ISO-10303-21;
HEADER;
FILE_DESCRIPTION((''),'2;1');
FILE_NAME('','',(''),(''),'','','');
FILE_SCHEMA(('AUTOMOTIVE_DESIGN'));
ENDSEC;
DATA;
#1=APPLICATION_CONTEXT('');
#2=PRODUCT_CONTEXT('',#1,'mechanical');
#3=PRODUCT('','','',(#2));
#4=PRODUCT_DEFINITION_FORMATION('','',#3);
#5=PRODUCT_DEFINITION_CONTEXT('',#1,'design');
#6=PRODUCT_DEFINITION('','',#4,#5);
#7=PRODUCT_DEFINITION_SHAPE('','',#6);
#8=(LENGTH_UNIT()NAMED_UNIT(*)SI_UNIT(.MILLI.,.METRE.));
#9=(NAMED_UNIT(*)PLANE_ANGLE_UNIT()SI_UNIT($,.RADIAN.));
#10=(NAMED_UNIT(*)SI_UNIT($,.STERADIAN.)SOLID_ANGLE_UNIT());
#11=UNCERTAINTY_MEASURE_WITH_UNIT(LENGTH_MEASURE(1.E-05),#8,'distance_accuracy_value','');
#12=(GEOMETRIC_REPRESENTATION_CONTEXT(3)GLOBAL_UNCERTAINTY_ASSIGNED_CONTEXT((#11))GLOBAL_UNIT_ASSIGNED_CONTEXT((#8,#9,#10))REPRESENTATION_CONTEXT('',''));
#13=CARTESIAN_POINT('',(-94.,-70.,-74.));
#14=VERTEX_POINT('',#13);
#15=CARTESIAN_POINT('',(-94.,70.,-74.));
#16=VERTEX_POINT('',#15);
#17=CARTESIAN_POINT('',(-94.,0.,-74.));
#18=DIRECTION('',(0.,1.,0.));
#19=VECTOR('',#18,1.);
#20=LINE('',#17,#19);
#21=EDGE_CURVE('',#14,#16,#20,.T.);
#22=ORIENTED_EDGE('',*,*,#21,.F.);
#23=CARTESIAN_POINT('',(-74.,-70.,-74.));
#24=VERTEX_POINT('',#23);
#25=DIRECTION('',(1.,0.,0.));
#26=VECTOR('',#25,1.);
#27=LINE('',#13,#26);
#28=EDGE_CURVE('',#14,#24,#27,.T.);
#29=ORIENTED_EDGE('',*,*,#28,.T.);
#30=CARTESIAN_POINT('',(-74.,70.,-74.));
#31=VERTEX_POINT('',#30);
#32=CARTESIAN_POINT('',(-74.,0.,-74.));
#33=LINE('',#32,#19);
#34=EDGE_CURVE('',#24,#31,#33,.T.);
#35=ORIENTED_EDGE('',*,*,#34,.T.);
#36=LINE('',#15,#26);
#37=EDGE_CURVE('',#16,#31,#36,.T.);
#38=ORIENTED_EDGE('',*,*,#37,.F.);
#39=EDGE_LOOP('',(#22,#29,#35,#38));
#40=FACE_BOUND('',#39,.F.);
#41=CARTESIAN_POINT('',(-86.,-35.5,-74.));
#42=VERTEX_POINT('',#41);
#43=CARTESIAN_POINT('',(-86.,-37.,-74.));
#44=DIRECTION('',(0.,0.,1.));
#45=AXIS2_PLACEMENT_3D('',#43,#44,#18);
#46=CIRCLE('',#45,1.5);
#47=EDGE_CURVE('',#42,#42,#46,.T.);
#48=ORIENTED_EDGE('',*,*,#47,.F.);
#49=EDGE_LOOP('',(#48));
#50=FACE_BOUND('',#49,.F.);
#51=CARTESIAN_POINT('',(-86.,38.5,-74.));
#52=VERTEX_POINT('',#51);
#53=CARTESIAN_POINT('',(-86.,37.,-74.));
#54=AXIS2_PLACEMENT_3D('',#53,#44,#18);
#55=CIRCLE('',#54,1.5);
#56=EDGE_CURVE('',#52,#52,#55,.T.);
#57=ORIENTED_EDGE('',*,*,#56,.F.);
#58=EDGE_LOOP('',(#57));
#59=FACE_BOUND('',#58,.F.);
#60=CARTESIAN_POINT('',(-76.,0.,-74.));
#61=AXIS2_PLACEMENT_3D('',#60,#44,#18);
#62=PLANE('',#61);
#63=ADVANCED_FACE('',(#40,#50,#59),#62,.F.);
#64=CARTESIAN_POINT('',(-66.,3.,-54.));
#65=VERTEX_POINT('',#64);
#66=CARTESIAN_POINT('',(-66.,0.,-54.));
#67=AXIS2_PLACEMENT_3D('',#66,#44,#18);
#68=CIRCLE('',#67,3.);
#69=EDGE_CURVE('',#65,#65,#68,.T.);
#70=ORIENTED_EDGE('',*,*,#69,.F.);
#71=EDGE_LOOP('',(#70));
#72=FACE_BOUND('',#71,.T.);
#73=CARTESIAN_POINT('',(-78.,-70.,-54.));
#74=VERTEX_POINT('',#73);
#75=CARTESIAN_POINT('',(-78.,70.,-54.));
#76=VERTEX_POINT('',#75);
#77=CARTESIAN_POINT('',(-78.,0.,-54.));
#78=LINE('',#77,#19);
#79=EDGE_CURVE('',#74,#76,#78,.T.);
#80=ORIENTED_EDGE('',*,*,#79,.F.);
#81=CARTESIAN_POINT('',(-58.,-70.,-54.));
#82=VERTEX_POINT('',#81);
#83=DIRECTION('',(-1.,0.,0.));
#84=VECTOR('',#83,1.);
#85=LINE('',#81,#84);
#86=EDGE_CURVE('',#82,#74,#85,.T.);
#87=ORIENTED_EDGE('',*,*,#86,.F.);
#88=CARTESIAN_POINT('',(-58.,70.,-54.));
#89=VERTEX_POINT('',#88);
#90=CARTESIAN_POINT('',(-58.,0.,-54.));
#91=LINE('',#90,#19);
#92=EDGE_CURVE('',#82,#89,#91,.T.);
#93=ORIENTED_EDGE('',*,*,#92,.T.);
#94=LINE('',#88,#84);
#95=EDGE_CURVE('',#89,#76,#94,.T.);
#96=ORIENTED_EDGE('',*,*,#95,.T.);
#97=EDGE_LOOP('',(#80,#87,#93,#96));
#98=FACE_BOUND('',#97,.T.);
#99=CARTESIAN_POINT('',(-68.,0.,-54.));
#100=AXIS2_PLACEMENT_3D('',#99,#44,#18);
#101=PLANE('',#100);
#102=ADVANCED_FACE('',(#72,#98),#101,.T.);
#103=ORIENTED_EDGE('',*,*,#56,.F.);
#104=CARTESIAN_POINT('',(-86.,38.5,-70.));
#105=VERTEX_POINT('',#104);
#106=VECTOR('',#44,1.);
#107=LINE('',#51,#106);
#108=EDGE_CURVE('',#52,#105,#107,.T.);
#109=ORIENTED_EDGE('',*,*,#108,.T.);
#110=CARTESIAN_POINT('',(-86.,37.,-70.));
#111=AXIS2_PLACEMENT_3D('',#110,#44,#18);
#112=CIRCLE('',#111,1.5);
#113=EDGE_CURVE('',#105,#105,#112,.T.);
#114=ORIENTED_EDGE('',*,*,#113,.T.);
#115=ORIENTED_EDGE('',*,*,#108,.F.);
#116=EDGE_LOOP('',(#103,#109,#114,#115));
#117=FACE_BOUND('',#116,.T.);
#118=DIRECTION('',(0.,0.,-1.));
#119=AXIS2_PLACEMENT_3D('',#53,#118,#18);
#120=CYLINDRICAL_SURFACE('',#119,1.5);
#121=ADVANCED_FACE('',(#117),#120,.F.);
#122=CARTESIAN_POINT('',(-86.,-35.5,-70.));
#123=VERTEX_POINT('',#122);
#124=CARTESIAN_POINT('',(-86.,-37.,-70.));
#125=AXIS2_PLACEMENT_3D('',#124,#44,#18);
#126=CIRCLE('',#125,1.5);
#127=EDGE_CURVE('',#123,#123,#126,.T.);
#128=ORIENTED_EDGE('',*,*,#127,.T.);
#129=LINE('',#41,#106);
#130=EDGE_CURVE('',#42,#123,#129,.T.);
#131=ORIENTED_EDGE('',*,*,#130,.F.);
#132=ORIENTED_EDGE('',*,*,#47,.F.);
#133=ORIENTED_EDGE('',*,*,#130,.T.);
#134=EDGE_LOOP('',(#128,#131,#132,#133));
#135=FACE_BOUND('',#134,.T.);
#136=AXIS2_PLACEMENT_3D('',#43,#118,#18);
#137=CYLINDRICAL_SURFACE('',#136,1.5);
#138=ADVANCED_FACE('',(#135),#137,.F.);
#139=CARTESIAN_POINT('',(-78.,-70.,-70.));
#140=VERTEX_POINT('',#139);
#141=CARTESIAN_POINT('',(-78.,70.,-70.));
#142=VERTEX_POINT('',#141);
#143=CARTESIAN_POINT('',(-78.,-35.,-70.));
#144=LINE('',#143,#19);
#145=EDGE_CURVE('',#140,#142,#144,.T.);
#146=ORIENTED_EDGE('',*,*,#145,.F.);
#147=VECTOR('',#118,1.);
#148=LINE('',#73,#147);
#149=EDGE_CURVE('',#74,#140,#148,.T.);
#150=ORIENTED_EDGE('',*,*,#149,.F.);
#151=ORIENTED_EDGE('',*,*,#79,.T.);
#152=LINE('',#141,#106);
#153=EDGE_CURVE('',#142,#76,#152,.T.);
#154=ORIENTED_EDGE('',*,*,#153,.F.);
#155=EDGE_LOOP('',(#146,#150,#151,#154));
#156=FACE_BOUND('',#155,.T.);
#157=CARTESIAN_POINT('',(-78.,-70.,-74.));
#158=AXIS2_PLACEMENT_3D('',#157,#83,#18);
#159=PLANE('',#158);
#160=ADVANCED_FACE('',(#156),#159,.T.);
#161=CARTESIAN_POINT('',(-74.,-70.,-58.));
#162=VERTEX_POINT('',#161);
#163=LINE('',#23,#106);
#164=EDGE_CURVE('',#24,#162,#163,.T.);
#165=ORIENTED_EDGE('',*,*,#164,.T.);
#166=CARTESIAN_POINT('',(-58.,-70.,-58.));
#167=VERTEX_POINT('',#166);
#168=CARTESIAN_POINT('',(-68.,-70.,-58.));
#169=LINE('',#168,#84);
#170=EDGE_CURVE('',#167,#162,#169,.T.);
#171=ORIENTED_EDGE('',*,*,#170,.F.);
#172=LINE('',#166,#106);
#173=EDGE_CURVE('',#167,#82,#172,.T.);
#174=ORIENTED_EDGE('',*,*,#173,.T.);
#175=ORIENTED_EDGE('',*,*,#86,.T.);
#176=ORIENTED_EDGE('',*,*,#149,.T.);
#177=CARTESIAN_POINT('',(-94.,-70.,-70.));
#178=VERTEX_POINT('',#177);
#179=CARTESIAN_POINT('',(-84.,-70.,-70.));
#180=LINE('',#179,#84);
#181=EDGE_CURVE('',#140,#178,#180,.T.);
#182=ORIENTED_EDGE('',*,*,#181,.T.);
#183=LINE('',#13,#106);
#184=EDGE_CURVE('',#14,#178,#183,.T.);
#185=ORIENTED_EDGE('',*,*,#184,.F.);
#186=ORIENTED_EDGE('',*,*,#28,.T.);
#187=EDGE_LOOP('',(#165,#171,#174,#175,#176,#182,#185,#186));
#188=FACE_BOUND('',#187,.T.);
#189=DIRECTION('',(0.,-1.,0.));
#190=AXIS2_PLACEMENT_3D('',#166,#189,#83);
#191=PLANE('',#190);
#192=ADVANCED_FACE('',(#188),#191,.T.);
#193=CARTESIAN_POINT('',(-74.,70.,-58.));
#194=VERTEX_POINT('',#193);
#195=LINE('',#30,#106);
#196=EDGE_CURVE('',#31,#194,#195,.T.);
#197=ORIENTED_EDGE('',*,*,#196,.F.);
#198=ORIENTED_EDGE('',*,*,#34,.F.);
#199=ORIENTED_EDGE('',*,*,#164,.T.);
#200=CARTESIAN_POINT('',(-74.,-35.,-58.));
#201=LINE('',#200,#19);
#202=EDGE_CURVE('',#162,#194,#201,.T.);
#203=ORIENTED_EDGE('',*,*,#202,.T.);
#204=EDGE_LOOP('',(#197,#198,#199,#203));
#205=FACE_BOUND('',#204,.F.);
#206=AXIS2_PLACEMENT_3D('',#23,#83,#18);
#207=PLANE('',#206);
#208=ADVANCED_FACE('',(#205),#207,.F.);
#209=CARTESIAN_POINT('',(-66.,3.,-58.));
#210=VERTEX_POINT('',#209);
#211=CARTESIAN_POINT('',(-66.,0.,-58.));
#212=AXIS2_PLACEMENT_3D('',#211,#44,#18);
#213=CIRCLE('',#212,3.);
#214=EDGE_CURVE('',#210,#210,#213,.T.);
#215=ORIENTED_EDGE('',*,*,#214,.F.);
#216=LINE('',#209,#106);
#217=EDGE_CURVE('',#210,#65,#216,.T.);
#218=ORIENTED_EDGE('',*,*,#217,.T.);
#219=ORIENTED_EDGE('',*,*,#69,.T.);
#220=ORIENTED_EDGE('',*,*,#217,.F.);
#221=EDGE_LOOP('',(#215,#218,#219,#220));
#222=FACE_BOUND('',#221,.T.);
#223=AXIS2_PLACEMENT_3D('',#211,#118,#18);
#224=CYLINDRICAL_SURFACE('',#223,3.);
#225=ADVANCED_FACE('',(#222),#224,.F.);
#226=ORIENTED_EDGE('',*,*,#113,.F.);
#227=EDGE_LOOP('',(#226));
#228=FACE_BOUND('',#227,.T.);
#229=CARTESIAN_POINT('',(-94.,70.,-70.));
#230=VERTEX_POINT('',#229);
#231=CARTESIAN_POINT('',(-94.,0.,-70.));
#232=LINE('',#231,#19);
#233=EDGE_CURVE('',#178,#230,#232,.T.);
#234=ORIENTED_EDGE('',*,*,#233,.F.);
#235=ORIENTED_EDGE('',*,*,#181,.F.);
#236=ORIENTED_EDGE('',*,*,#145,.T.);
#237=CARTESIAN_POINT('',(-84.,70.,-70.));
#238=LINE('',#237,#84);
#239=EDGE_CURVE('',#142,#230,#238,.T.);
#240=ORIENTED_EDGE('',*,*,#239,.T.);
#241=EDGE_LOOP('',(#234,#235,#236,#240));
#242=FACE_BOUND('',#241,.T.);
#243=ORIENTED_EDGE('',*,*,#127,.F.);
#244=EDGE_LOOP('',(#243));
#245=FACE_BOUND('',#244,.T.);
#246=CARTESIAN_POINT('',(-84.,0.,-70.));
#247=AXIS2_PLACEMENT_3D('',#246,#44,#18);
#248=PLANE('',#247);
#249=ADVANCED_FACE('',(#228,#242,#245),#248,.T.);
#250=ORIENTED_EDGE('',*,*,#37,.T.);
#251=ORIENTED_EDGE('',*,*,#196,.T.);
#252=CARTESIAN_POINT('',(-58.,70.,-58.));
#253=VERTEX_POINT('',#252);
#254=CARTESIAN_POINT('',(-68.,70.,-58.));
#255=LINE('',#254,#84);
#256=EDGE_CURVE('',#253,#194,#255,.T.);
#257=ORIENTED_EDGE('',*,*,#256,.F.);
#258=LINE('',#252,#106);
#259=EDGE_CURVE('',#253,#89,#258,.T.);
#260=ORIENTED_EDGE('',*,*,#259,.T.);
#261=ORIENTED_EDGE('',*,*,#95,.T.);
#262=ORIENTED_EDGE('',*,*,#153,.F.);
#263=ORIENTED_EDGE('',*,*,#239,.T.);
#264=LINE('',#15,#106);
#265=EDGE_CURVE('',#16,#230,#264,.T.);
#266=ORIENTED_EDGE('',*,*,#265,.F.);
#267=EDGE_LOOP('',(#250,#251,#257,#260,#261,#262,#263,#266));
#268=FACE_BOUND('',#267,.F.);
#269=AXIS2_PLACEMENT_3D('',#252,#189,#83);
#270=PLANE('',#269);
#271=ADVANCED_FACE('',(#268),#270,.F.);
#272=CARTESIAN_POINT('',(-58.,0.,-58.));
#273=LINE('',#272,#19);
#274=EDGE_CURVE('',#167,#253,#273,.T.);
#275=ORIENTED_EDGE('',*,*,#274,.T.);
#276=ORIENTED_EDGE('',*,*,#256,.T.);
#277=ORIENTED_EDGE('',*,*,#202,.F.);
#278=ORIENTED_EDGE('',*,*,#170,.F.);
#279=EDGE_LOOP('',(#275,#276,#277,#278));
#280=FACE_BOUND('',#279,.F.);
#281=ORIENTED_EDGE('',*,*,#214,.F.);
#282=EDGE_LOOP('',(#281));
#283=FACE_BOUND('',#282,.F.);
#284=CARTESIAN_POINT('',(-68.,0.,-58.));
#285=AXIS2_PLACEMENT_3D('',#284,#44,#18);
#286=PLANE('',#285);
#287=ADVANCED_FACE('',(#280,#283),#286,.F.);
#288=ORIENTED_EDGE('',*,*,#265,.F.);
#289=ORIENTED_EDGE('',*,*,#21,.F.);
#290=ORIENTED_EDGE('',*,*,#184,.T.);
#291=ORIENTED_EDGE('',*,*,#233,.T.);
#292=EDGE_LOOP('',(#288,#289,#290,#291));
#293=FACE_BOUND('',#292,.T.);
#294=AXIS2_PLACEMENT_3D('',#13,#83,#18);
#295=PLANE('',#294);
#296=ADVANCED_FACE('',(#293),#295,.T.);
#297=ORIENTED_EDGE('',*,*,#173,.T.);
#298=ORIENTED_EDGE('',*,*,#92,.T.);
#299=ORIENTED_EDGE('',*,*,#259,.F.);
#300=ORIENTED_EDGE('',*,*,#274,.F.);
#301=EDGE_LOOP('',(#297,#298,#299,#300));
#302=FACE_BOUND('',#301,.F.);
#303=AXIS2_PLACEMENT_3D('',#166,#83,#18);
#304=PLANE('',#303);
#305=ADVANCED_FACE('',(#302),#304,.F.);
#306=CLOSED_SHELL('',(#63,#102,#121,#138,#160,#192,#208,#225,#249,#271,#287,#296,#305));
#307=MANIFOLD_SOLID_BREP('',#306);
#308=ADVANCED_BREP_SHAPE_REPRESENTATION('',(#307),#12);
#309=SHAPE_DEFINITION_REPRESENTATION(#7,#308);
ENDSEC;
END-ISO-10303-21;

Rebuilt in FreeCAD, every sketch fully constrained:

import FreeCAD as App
import Part
import Sketcher
from FreeCAD import Vector
Q = App.Units.Quantity


def add_polygon(sketch, points):
    """Adds a closed chain of lines whose ends are joined by coincident constraints."""
    first, n = sketch.GeometryCount, len(points)
    for a, b in zip(points, points[1:] + points[:1]):
        sketch.addGeometry(Part.LineSegment(App.Vector(*a, 0), App.Vector(*b, 0)), False)
    for i in range(n):
        sketch.addConstraint(Sketcher.Constraint("Coincident", first + i, 2, first + (i + 1) % n, 1))

doc = App.newDocument("Part")
params = doc.addObject("Spreadsheet::Sheet", "Params")
for row, (alias, value) in enumerate([
    ("sketch1_diameter", "3 mm"),
    ("pad1_length", "4 mm"),
    ("sketch2_diameter", "6 mm"),
    ("pad2_length", "4 mm"),
    ("sketch3_diameter", "3 mm"),
    ("pad3_length", "4 mm"),
    ("sketch4_width", "140 mm"),
    ("sketch4_height", "20 mm"),
    ("pad4_length", "4 mm"),
    ("sketch5_width", "140 mm"),
    ("sketch5_height", "20 mm"),
    ("pad5_length", "4 mm"),
    ("sketch6_width", "140 mm"),
    ("sketch6_height", "4 mm"),
    ("pad6_length", "20 mm"),
], start=1):
    params.set(f"A{row}", alias)
    params.set(f"B{row}", "=" + value)
    params.setAlias(f"B{row}", alias)

body = doc.addObject("PartDesign::Body", "Body")

sketch1 = body.newObject("Sketcher::SketchObject", "Sketch")
sketch1.AttachmentSupport = (doc.getObject("XY_Plane"), [""])
sketch1.MapMode = "FlatFace"
sketch1.addGeometry(Part.Circle(Vector(33, 12, 0), Vector(0, 0, 1), 1.5), False)
sketch1.addConstraint([
    Sketcher.Constraint("Diameter", 0, Q("3 mm")),
    Sketcher.Constraint("DistanceX", -1, 1, 0, 3, Q("33 mm")),
    Sketcher.Constraint("DistanceY", -1, 1, 0, 3, Q("12 mm")),
])
sketch1.setExpression("Constraints[0]", "Params.sketch1_diameter")
pad1 = body.newObject("PartDesign::Pad", "Pad")
pad1.Profile = sketch1
pad1.setExpression("Length", "Params.pad1_length")
body2 = doc.addObject("PartDesign::Body", "Body001")

sketch2 = body2.newObject("Sketcher::SketchObject", "Sketch001")
sketch2.AttachmentSupport = (doc.getObject("XY_Plane001"), [""])
sketch2.MapMode = "FlatFace"
sketch2.AttachmentOffset = App.Placement(Vector(0, 0, 16), App.Rotation())
sketch2.addGeometry(Part.Circle(Vector(70, -8, 0), Vector(0, 0, 1), 3), False)
sketch2.addConstraint([
    Sketcher.Constraint("Diameter", 0, Q("6 mm")),
    Sketcher.Constraint("DistanceX", -1, 1, 0, 3, Q("70 mm")),
    Sketcher.Constraint("DistanceY", 0, 3, -1, 1, Q("8 mm")),
])
sketch2.setExpression("Constraints[0]", "Params.sketch2_diameter")
pad2 = body2.newObject("PartDesign::Pad", "Pad001")
pad2.Profile = sketch2
pad2.setExpression("Length", "Params.pad2_length")
body3 = doc.addObject("PartDesign::Body", "Body002")
body3.AllowCompound = True

sketch3 = body3.newObject("Sketcher::SketchObject", "Sketch002")
sketch3.AttachmentSupport = (doc.getObject("XY_Plane002"), [""])
sketch3.MapMode = "FlatFace"
sketch3.addGeometry(Part.Circle(Vector(107, 12, 0), Vector(0, 0, 1), 1.5), False)
sketch3.addConstraint([
    Sketcher.Constraint("Diameter", 0, Q("3 mm")),
    Sketcher.Constraint("DistanceX", -1, 1, 0, 3, Q("107 mm")),
    Sketcher.Constraint("DistanceY", -1, 1, 0, 3, Q("12 mm")),
])
sketch3.setExpression("Constraints[0]", "Params.sketch3_diameter")
pad3 = body3.newObject("PartDesign::Pad", "Pad002")
pad3.Profile = sketch3
pad3.setExpression("Length", "Params.pad3_length")
doc.recompute()

boolean = body3.newObject("PartDesign::Boolean", "Boolean")
boolean.Type = "Fuse"
boolean.addObjects([body])
doc.recompute()

boolean2 = body3.newObject("PartDesign::Boolean", "Boolean001")
boolean2.Type = "Fuse"
boolean2.addObjects([body2])
body4 = doc.addObject("PartDesign::Body", "Body003")

sketch4 = body4.newObject("Sketcher::SketchObject", "Sketch003")
sketch4.AttachmentSupport = (doc.getObject("XY_Plane003"), [""])
sketch4.MapMode = "FlatFace"
add_polygon(sketch4, [(0, 20), (0, 0), (140, 0), (140, 20)])
sketch4.addConstraint([
    Sketcher.Constraint("Vertical", 0),
    Sketcher.Constraint("Horizontal", 1),
    Sketcher.Constraint("Vertical", 2),
    Sketcher.Constraint("Horizontal", 3),
    Sketcher.Constraint("Coincident", 0, 2, -1, 1),
    Sketcher.Constraint("DistanceX", 1, 1, 1, 2, Q("140 mm")),
    Sketcher.Constraint("DistanceY", 0, 2, 0, 1, Q("20 mm")),
])
sketch4.setExpression("Constraints[9]", "Params.sketch4_width")
sketch4.setExpression("Constraints[10]", "Params.sketch4_height")
pad4 = body4.newObject("PartDesign::Pad", "Pad003")
pad4.Profile = sketch4
pad4.setExpression("Length", "Params.pad4_length")
body5 = doc.addObject("PartDesign::Body", "Body004")

sketch5 = body5.newObject("Sketcher::SketchObject", "Sketch004")
sketch5.AttachmentSupport = (doc.getObject("XY_Plane004"), [""])
sketch5.MapMode = "FlatFace"
sketch5.AttachmentOffset = App.Placement(Vector(0, 0, 16), App.Rotation())
add_polygon(sketch5, [(0, 4), (0, -16), (140, -16), (140, 4)])
sketch5.addConstraint([
    Sketcher.Constraint("Vertical", 0),
    Sketcher.Constraint("Horizontal", 1),
    Sketcher.Constraint("Vertical", 2),
    Sketcher.Constraint("Horizontal", 3),
    Sketcher.Constraint("PointOnObject", 0, 2, -2),
    Sketcher.Constraint("DistanceX", 1, 1, 1, 2, Q("140 mm")),
    Sketcher.Constraint("DistanceY", 0, 2, 0, 1, Q("20 mm")),
    Sketcher.Constraint("DistanceY", 0, 2, -1, 1, Q("16 mm")),
])
sketch5.setExpression("Constraints[9]", "Params.sketch5_width")
sketch5.setExpression("Constraints[10]", "Params.sketch5_height")
pad5 = body5.newObject("PartDesign::Pad", "Pad004")
pad5.Profile = sketch5
pad5.setExpression("Length", "Params.pad5_length")
body6 = doc.addObject("PartDesign::Body", "Body005")

sketch6 = body6.newObject("Sketcher::SketchObject", "Sketch005")
sketch6.AttachmentSupport = (doc.getObject("XY_Plane005"), [""])
sketch6.MapMode = "FlatFace"
add_polygon(sketch6, [(0, 4), (0, 0), (140, 0), (140, 4)])
sketch6.addConstraint([
    Sketcher.Constraint("Vertical", 0),
    Sketcher.Constraint("Horizontal", 1),
    Sketcher.Constraint("Vertical", 2),
    Sketcher.Constraint("Horizontal", 3),
    Sketcher.Constraint("Coincident", 0, 2, -1, 1),
    Sketcher.Constraint("DistanceX", 1, 1, 1, 2, Q("140 mm")),
    Sketcher.Constraint("DistanceY", 0, 2, 0, 1, Q("4 mm")),
])
sketch6.setExpression("Constraints[9]", "Params.sketch6_width")
sketch6.setExpression("Constraints[10]", "Params.sketch6_height")
pad6 = body6.newObject("PartDesign::Pad", "Pad005")
pad6.Profile = sketch6
pad6.setExpression("Length", "Params.pad6_length")
doc.recompute()

boolean3 = body6.newObject("PartDesign::Boolean", "Boolean002")
boolean3.Type = "Fuse"
boolean3.addObjects([body4])
doc.recompute()

boolean4 = body6.newObject("PartDesign::Boolean", "Boolean003")
boolean4.Type = "Fuse"
boolean4.addObjects([body5])
doc.recompute()

boolean5 = body6.newObject("PartDesign::Boolean", "Boolean004")
boolean5.Type = "Cut"
boolean5.addObjects([body3])
body7 = doc.addObject("PartDesign::Body", "Body006")
doc.recompute()

body6.Placement = App.Placement(Vector(-74, -70, -74), App.Rotation(Vector(0, 0, 1), 90))
boolean6 = body7.newObject("PartDesign::Boolean", "Boolean005")
boolean6.Type = "Fuse"
boolean6.addObjects([body6])

doc.recompute()
